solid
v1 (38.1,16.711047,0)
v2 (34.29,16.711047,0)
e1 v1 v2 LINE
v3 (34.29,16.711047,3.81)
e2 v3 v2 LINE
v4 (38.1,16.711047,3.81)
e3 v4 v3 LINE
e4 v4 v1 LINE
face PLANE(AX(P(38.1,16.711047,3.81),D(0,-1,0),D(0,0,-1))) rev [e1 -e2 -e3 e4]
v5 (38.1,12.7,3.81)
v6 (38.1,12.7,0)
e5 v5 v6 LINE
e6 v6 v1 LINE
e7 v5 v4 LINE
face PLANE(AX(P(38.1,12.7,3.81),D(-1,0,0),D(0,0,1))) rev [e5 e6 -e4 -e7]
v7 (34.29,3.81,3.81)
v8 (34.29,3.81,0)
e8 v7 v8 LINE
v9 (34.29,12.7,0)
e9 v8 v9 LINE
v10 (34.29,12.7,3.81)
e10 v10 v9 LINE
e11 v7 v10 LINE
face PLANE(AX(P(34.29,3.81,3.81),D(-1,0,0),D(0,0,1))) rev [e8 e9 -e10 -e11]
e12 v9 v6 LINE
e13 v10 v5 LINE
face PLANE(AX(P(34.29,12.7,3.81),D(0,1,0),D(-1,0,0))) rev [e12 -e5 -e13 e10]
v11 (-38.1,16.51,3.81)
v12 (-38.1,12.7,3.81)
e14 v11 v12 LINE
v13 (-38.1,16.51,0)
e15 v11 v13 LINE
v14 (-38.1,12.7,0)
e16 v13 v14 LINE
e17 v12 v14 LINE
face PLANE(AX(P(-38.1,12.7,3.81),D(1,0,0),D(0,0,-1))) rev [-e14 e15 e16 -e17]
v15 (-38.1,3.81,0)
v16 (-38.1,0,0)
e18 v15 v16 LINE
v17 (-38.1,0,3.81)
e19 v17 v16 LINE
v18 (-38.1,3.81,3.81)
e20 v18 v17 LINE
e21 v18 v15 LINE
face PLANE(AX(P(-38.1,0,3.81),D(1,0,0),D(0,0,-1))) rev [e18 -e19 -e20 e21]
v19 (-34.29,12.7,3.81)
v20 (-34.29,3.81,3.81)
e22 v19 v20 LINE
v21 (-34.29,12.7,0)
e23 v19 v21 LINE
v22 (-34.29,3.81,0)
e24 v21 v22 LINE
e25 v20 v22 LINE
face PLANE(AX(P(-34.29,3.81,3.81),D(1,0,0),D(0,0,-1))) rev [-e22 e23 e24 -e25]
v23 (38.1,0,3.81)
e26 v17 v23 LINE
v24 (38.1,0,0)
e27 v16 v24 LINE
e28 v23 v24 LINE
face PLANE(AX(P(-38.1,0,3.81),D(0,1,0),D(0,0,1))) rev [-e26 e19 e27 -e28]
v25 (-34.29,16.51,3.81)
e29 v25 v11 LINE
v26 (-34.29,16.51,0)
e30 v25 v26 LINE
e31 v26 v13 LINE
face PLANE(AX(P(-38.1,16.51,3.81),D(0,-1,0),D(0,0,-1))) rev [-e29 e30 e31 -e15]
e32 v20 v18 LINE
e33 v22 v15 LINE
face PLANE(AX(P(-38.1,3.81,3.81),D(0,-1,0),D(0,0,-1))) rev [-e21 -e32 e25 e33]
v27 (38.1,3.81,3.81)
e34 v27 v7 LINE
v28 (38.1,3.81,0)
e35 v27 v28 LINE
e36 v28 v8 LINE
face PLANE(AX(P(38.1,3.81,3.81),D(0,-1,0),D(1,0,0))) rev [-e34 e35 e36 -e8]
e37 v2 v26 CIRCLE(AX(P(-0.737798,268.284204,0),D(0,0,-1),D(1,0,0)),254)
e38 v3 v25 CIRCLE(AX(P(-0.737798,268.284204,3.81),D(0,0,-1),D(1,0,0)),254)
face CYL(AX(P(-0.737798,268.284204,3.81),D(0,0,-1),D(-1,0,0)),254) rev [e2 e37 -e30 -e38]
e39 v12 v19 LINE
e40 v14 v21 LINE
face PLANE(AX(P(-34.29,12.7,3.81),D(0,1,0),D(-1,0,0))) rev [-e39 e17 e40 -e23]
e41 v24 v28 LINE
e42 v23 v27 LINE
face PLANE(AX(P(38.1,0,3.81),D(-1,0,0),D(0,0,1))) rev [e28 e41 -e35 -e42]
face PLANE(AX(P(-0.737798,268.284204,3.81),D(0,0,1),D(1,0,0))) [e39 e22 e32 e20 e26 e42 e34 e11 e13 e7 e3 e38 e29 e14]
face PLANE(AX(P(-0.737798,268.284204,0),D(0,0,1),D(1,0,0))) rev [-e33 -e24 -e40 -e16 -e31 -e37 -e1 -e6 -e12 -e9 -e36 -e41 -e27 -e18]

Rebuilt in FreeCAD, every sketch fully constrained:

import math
import FreeCAD as App
import Part
import Sketcher
from FreeCAD import Vector
Q = App.Units.Quantity

doc = App.newDocument("Part")
body = doc.addObject("PartDesign::Body", "Body")

# Sketch on XY plane
sketch1 = body.newObject("Sketcher::SketchObject", "Sketch")
sketch1.AttachmentSupport = (doc.getObject("XY_Plane"), [""])
sketch1.MapMode = "FlatFace"
sketch1.addGeometry(Part.LineSegment(Vector(-38.1, 0, 0), Vector(38.1, 0, 0)), False)
sketch1.addGeometry(Part.LineSegment(Vector(38.1, 0, 0), Vector(38.1, 3.81, 0)), False)
sketch1.addGeometry(Part.LineSegment(Vector(38.1, 3.81, 0), Vector(34.29, 3.81, 0)), False)
sketch1.addGeometry(Part.LineSegment(Vector(34.29, 3.81, 0), Vector(34.29, 12.7, 0)), False)
sketch1.addGeometry(Part.LineSegment(Vector(34.29, 12.7, 0), Vector(38.1, 12.7, 0)), False)
sketch1.addGeometry(Part.LineSegment(Vector(38.1, 12.7, 0), Vector(38.1, 16.711047, 0)), False)
sketch1.addGeometry(Part.LineSegment(Vector(38.1, 16.711047, 0), Vector(34.29, 16.711047, 0)), False)
sketch1.addGeometry(Part.ArcOfCircle(Part.Circle(Vector(-0.737798, 268.284204, 0), Vector(0, 0, 1), 254), math.radians(-97.590688), math.radians(-82.073381)), False)
sketch1.addGeometry(Part.LineSegment(Vector(-34.29, 16.51, 0), Vector(-38.1, 16.51, 0)), False)
sketch1.addGeometry(Part.LineSegment(Vector(-38.1, 16.51, 0), Vector(-38.1, 12.7, 0)), False)
sketch1.addGeometry(Part.LineSegment(Vector(-38.1, 12.7, 0), Vector(-34.29, 12.7, 0)), False)
sketch1.addGeometry(Part.LineSegment(Vector(-34.29, 12.7, 0), Vector(-34.29, 3.81, 0)), False)
sketch1.addGeometry(Part.LineSegment(Vector(-34.29, 3.81, 0), Vector(-38.1, 3.81, 0)), False)
sketch1.addGeometry(Part.LineSegment(Vector(-38.1, 3.81, 0), Vector(-38.1, 0, 0)), False)
sketch1.addConstraint(Sketcher.Constraint("Coincident", 0, 2, 1, 1))
sketch1.addConstraint(Sketcher.Constraint("Coincident", 1, 2, 2, 1))
sketch1.addConstraint(Sketcher.Constraint("Coincident", 2, 2, 3, 1))
sketch1.addConstraint(Sketcher.Constraint("Coincident", 3, 2, 4, 1))
sketch1.addConstraint(Sketcher.Constraint("Coincident", 4, 2, 5, 1))
sketch1.addConstraint(Sketcher.Constraint("Coincident", 5, 2, 6, 1))
sketch1.addConstraint(Sketcher.Constraint("Coincident", 6, 2, 7, 2))
sketch1.addConstraint(Sketcher.Constraint("Coincident", 7, 1, 8, 1))
sketch1.addConstraint(Sketcher.Constraint("Coincident", 8, 2, 9, 1))
sketch1.addConstraint(Sketcher.Constraint("Coincident", 9, 2, 10, 1))
sketch1.addConstraint(Sketcher.Constraint("Coincident", 10, 2, 11, 1))
sketch1.addConstraint(Sketcher.Constraint("Coincident", 11, 2, 12, 1))
sketch1.addConstraint(Sketcher.Constraint("Coincident", 12, 2, 13, 1))
sketch1.addConstraint(Sketcher.Constraint("Coincident", 13, 2, 0, 1))
sketch1.addConstraint(Sketcher.Constraint("Horizontal", 0))
sketch1.addConstraint(Sketcher.Constraint("Vertical", 1))
sketch1.addConstraint(Sketcher.Constraint("Horizontal", 2))
sketch1.addConstraint(Sketcher.Constraint("Vertical", 3))
sketch1.addConstraint(Sketcher.Constraint("Horizontal", 4))
sketch1.addConstraint(Sketcher.Constraint("Vertical", 5))
sketch1.addConstraint(Sketcher.Constraint("Horizontal", 6))
sketch1.addConstraint(Sketcher.Constraint("Horizontal", 8))
sketch1.addConstraint(Sketcher.Constraint("Vertical", 9))
sketch1.addConstraint(Sketcher.Constraint("Horizontal", 10))
sketch1.addConstraint(Sketcher.Constraint("Vertical", 11))
sketch1.addConstraint(Sketcher.Constraint("Horizontal", 12))
sketch1.addConstraint(Sketcher.Constraint("Vertical", 13))
sketch1.addConstraint(Sketcher.Constraint("Symmetric", 0, 2, 13, 2, -1, 1))
sketch1.addConstraint(Sketcher.Constraint("Symmetric", 4, 2, 9, 2, -2))
sketch1.addConstraint(Sketcher.Constraint("Symmetric", 2, 2, 11, 2, -2))
sketch1.addConstraint(Sketcher.Constraint("Vertical", 1, 2, 4, 2))
sketch1.addConstraint(Sketcher.Constraint("Vertical", 3, 2, 6, 2))
sketch1.addConstraint(Sketcher.Constraint("Vertical", 7, 1, 10, 2))
sketch1.addConstraint(Sketcher.Constraint("Equal", 12, 1))
sketch1.addConstraint(Sketcher.Constraint("Equal", 1, 9))
sketch1.addConstraint(Sketcher.Constraint("Radius", 7, Q("10 in")))
sketch1.addConstraint(Sketcher.Constraint("DistanceX", 0, 1, 0, 2, Q("3 in")))
sketch1.addConstraint(Sketcher.Constraint("DistanceX", 2, 2, 2, 1, Q("0.15 in")))
sketch1.addConstraint(Sketcher.Constraint("DistanceY", 3, 1, 3, 2, Q("0.35 in")))
sketch1.addConstraint(Sketcher.Constraint("DistanceY", 5, 1, 5, 2, 4.011047))
pad1 = body.newObject("PartDesign::Pad", "Pad")
pad1.Profile = sketch1
pad1.Length = Q("0.15 in")

doc.recompute()
